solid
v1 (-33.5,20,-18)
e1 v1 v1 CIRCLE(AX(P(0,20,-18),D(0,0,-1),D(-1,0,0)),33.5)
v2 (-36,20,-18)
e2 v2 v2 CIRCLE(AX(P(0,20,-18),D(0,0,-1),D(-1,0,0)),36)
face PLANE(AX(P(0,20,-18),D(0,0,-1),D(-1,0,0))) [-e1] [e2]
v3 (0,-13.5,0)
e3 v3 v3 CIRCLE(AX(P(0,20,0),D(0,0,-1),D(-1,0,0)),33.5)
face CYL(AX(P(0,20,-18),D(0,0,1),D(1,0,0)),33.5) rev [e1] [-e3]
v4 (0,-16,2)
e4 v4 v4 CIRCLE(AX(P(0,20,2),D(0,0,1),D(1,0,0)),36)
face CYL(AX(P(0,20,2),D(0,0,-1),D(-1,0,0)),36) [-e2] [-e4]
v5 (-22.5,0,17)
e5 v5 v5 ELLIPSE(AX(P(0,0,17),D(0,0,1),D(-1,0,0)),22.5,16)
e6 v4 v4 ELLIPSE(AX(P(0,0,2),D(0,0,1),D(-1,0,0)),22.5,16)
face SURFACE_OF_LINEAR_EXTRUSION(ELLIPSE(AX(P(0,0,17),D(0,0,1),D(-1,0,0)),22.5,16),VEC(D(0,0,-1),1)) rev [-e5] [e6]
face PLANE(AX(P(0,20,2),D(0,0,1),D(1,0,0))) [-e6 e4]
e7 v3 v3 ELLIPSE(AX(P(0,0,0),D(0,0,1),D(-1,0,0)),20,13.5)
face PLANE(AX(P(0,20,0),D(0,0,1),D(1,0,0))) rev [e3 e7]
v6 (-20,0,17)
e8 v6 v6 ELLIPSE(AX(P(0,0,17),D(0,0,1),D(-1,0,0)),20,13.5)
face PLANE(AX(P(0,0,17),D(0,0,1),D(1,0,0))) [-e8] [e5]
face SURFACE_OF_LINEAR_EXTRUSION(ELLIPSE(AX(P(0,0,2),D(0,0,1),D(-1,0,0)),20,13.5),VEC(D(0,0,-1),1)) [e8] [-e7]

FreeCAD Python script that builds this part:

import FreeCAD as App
import Part
import Sketcher
from FreeCAD import Vector
Q = App.Units.Quantity

doc = App.newDocument("Part")
body = doc.addObject("PartDesign::Body", "Body")

# Sketch on XY plane
sketch1 = body.newObject("Sketcher::SketchObject", "Sketch")
sketch1.AttachmentSupport = (doc.getObject("XY_Plane"), [""])
sketch1.MapMode = "FlatFace"
sketch1.addGeometry([
    Part.Circle(Vector(0, 20, 0), Vector(0, 0, 1), 36),
    Part.Ellipse(Vector(-20, 0, 0), Vector(0, -13.5, 0), Vector(0, 0, 0)),
], False)
sketch1.addConstraint([
    Sketcher.Constraint("Block", 1),
    Sketcher.Constraint("PointOnObject", 0, 3, -2),
    Sketcher.Constraint("Diameter", 0, Q("72 mm")),
    Sketcher.Constraint("DistanceY", -1, 1, 0, 3, Q("20 mm")),
])
pad1 = body.newObject("PartDesign::Pad", "Pad")
pad1.Profile = sketch1
pad1.Length = 2

# Sketch on XY plane
sketch2 = body.newObject("Sketcher::SketchObject", "Sketch001")
sketch2.AttachmentSupport = (doc.getObject("XY_Plane"), [""])
sketch2.MapMode = "FlatFace"
sketch2.AttachmentOffset = App.Placement(Vector(0, 0, 2), App.Rotation())
sketch2.addGeometry([
    Part.Ellipse(Vector(-22.5, 0, 0), Vector(0, -16, 0), Vector(0, 0, 0)),
    Part.Ellipse(Vector(-20, 0, 0), Vector(0, -13.5, 0), Vector(0, 0, 0)),
], False)
sketch2.addConstraint([
    Sketcher.Constraint("Block", 0),
    Sketcher.Constraint("Block", 1),
])
pad2 = body.newObject("PartDesign::Pad", "Pad001")
pad2.Profile = sketch2
pad2.Length = 15

# Sketch on XY plane
sketch3 = body.newObject("Sketcher::SketchObject", "Sketch002")
sketch3.AttachmentSupport = (doc.getObject("XY_Plane"), [""])
sketch3.MapMode = "FlatFace"
sketch3.AttachmentOffset = App.Placement(Vector(0, 0, -18), App.Rotation())
sketch3.addGeometry([
    Part.Circle(Vector(0, 20, 0), Vector(0, 0, 1), 36),
    Part.Circle(Vector(0, 20, 0), Vector(0, 0, 1), 33.5),
], False)
sketch3.addConstraint([
    Sketcher.Constraint("Coincident", 1, 3, 0, 3),
    Sketcher.Constraint("PointOnObject", 0, 3, -2),
    Sketcher.Constraint("Diameter", 0, Q("72 mm")),
    Sketcher.Constraint("Diameter", 1, Q("67 mm")),
    Sketcher.Constraint("DistanceY", -1, 1, 0, 3, Q("20 mm")),
])
pad3 = body.newObject("PartDesign::Pad", "Pad002")
pad3.Profile = sketch3
pad3.Length = 18

doc.recompute()
